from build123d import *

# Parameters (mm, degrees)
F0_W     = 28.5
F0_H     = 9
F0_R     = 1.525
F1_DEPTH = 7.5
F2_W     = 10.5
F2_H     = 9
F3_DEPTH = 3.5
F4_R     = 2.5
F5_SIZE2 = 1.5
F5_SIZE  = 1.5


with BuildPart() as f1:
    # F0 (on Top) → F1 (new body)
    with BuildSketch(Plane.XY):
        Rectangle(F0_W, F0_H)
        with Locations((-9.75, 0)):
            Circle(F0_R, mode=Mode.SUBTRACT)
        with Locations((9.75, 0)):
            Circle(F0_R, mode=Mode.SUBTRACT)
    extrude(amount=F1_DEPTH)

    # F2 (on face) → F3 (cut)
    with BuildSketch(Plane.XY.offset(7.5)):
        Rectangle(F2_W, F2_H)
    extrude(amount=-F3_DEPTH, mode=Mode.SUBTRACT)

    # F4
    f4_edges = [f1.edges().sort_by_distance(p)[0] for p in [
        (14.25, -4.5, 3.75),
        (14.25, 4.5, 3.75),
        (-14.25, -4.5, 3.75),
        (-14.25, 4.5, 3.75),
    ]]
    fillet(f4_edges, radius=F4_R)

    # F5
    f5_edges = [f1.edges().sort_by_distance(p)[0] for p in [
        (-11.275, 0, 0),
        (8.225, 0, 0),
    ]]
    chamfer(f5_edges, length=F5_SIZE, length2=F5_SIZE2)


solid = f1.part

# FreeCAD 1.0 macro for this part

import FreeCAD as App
import Part
import Sketcher

V = App.Vector
Q = App.Units.Quantity


def edges_at(feature, points):
    """Names of the edges that pass closest to the given points."""
    edges = feature.Shape.Edges
    near = lambda p: min(range(len(edges)), key=lambda i: edges[i].distToShape(Part.Vertex(*p))[0])
    return sorted({f"Edge{near(p) + 1}" for p in points})

doc = App.newDocument("Part")
body = doc.addObject("PartDesign::Body", "Body")

sketch1 = body.newObject("Sketcher::SketchObject", "Sketch")
sketch1.AttachmentSupport = (doc.getObject("XY_Plane"), [""])
sketch1.MapMode = "FlatFace"
sketch1.addGeometry([
    Part.LineSegment(V(-14.25, 4.5, 0), V(-14.25, -4.5, 0)),
    Part.LineSegment(V(-14.25, -4.5, 0), V(14.25, -4.5, 0)),
    Part.LineSegment(V(14.25, -4.5, 0), V(14.25, 4.5, 0)),
    Part.LineSegment(V(14.25, 4.5, 0), V(-14.25, 4.5, 0)),
    Part.Circle(V(-9.75, 0, 0), V(0, 0, 1), 1.525),
    Part.Circle(V(9.75, 0, 0), V(0, 0, 1), 1.525),
], False)
sketch1.addConstraint([
    Sketcher.Constraint("Coincident", 0, 2, 1, 1),
    Sketcher.Constraint("Coincident", 1, 2, 2, 1),
    Sketcher.Constraint("Coincident", 2, 2, 3, 1),
    Sketcher.Constraint("Coincident", 3, 2, 0, 1),
    Sketcher.Constraint("Vertical", 0),
    Sketcher.Constraint("Horizontal", 1),
    Sketcher.Constraint("Vertical", 2),
    Sketcher.Constraint("Horizontal", 3),
    Sketcher.Constraint("Equal", 4, 5),
    Sketcher.Constraint("Symmetric", 4, 3, 5, 3, -1, 1),
    Sketcher.Constraint("Symmetric", 0, 2, 2, 2, -1, 1),
    Sketcher.Constraint("PointOnObject", 4, 3, -1),
    Sketcher.Constraint("Diameter", 4, Q("3.05 mm")),
    Sketcher.Constraint("DistanceY", 0, 2, 0, 1, Q("9 mm")),
    Sketcher.Constraint("DistanceX", 1, 1, 1, 2, Q("28.5 mm")),
    Sketcher.Constraint("DistanceX", 0, 2, 5, 3, Q("24 mm")),
])
pad1 = body.newObject("PartDesign::Pad", "Pad")
pad1.Profile = sketch1
pad1.Length = 7.5

sketch2 = body.newObject("Sketcher::SketchObject", "Sketch001")
sketch2.AttachmentSupport = (doc.getObject("XY_Plane"), [""])
sketch2.MapMode = "FlatFace"
sketch2.AttachmentOffset = App.Placement(V(0, 0, 7.5), App.Rotation())
sketch2.addGeometry([
    Part.LineSegment(V(-5.25, 4.5, 0), V(-5.25, -4.5, 0)),
    Part.LineSegment(V(-5.25, -4.5, 0), V(5.25, -4.5, 0)),
    Part.LineSegment(V(5.25, -4.5, 0), V(5.25, 4.5, 0)),
    Part.LineSegment(V(5.25, 4.5, 0), V(-5.25, 4.5, 0)),
], False)
sketch2.addConstraint([
    Sketcher.Constraint("Coincident", 0, 2, 1, 1),
    Sketcher.Constraint("Coincident", 1, 2, 2, 1),
    Sketcher.Constraint("Coincident", 2, 2, 3, 1),
    Sketcher.Constraint("Coincident", 3, 2, 0, 1),
    Sketcher.Constraint("Vertical", 0),
    Sketcher.Constraint("Horizontal", 1),
    Sketcher.Constraint("Vertical", 2),
    Sketcher.Constraint("Horizontal", 3),
    Sketcher.Constraint("Symmetric", 0, 2, 2, 2, -1, 1),
    Sketcher.Constraint("DistanceY", 0, 2, 0, 1, Q("9 mm")),
    Sketcher.Constraint("DistanceX", 1, 1, 1, 2, Q("10.5 mm")),
])
pocket1 = body.newObject("PartDesign::Pocket", "Pocket")
pocket1.Profile = sketch2
pocket1.Length = 3.5
doc.recompute()

fillet = body.newObject("PartDesign::Fillet", "Fillet")
fillet.Base = (pocket1, edges_at(pocket1, [
    (14.25, -4.5, 3.75),
    (14.25, 4.5, 3.75),
    (-14.25, -4.5, 3.75),
    (-14.25, 4.5, 3.75),
]))
fillet.Radius = 2.5
doc.recompute()

chamfer = body.newObject("PartDesign::Chamfer", "Chamfer")
chamfer.Base = (fillet, edges_at(fillet, [(-11.275, 0, 0), (8.225, 0, 0)]))
chamfer.ChamferType = "Two distances"
chamfer.Size = 1.5
chamfer.Size2 = 1.5

doc.recompute()
